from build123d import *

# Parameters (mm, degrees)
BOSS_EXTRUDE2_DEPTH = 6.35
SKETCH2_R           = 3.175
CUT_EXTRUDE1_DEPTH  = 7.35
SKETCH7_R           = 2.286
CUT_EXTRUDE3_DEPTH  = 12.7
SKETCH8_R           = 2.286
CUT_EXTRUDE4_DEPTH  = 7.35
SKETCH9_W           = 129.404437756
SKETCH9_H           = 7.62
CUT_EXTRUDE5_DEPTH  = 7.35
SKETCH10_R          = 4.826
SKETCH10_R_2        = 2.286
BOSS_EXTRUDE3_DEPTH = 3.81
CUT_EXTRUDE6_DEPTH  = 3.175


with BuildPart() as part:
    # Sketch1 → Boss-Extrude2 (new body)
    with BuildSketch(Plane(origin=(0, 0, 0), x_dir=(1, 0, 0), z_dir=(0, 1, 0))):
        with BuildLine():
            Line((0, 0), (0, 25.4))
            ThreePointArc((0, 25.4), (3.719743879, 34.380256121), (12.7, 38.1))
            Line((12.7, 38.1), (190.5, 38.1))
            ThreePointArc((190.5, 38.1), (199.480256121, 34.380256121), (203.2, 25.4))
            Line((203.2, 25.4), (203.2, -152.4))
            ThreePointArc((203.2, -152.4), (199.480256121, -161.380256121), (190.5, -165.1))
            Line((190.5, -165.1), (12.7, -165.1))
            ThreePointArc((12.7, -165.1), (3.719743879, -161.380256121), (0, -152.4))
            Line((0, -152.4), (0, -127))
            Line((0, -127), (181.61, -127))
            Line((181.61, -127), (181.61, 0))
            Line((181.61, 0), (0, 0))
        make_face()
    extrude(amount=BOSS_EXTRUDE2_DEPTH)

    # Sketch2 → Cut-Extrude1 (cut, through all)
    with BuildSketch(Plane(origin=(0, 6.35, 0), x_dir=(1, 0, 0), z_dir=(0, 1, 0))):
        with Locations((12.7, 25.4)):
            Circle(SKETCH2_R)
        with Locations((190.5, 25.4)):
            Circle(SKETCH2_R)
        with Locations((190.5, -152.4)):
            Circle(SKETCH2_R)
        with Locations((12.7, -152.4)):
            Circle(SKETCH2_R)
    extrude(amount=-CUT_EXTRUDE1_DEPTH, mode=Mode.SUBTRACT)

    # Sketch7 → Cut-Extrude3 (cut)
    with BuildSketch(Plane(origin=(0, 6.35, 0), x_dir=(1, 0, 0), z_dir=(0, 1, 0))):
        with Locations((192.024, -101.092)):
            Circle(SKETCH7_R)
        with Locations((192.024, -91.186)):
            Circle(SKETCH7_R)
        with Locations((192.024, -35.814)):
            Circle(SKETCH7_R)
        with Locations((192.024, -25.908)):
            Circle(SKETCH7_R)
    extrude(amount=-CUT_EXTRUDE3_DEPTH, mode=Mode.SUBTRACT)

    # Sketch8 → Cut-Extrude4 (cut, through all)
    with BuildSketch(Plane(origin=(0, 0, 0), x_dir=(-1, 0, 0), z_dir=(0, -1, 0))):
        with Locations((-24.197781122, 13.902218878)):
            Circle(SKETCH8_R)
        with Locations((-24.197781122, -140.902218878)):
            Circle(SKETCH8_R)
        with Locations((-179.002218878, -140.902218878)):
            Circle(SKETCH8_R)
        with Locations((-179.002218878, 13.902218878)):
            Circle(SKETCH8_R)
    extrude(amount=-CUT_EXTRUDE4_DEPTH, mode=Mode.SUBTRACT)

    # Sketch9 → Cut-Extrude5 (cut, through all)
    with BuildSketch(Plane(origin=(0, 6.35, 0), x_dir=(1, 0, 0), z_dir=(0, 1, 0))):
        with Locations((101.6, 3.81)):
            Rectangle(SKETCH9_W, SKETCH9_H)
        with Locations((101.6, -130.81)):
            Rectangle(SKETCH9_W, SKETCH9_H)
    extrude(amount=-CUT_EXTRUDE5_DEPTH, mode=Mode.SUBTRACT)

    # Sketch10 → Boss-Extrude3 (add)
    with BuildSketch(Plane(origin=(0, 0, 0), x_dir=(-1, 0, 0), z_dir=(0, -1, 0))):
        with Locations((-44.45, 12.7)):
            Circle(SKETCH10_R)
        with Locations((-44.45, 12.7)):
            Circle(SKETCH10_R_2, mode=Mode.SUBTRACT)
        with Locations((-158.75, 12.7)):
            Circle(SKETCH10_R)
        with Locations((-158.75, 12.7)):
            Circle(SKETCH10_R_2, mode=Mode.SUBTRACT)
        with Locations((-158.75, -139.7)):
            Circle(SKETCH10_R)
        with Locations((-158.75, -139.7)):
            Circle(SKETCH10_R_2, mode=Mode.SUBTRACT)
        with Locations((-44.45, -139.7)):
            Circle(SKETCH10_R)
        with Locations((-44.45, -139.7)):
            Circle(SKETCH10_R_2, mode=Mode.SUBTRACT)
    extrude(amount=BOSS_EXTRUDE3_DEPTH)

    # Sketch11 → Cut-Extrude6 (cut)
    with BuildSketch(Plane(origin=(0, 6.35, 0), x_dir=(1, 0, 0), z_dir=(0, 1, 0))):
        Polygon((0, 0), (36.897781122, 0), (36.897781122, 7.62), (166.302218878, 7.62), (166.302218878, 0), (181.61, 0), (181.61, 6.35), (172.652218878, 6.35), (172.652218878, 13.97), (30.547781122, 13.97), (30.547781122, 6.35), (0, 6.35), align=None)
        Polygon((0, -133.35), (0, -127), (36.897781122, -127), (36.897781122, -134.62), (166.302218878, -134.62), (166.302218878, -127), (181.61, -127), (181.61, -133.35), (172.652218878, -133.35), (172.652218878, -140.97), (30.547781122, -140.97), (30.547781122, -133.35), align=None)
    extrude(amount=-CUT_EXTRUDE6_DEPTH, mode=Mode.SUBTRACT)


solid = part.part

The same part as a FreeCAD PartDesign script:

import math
import FreeCAD as App
import Part
import Sketcher
from FreeCAD import Vector
Q = App.Units.Quantity


def add_polygon(sketch, points):
    """Adds a closed chain of lines whose ends are joined by coincident constraints."""
    first, n = sketch.GeometryCount, len(points)
    for a, b in zip(points, points[1:] + points[:1]):
        sketch.addGeometry(Part.LineSegment(App.Vector(*a, 0), App.Vector(*b, 0)), False)
    for i in range(n):
        sketch.addConstraint(Sketcher.Constraint("Coincident", first + i, 2, first + (i + 1) % n, 1))

doc = App.newDocument("Part")
body = doc.addObject("PartDesign::Body", "Body")

sketch1 = body.newObject("Sketcher::SketchObject", "Sketch")
sketch1.AttachmentSupport = (doc.getObject("XZ_Plane"), [""])
sketch1.MapMode = "FlatFace"
sketch1.addGeometry(Part.LineSegment(Vector(0, -25.4, 0), Vector(0, 0, 0)), False)
sketch1.addGeometry(Part.LineSegment(Vector(0, 0, 0), Vector(181.61, 0, 0)), False)
sketch1.addGeometry(Part.LineSegment(Vector(181.61, 0, 0), Vector(181.61, 127, 0)), False)
sketch1.addGeometry(Part.LineSegment(Vector(181.61, 127, 0), Vector(0, 127, 0)), False)
sketch1.addGeometry(Part.LineSegment(Vector(0, 127, 0), Vector(0, 152.4, 0)), False)
sketch1.addGeometry(Part.ArcOfCircle(Part.Circle(Vector(12.7, 152.4, 0), Vector(0, 0, 1), 12.7), math.radians(90), math.radians(180)), False)
sketch1.addGeometry(Part.LineSegment(Vector(12.7, 165.1, 0), Vector(190.5, 165.1, 0)), False)
sketch1.addGeometry(Part.ArcOfCircle(Part.Circle(Vector(190.5, 152.4, 0), Vector(0, 0, 1), 12.7), math.radians(0), math.radians(90)), False)
sketch1.addGeometry(Part.LineSegment(Vector(203.2, 152.4, 0), Vector(203.2, -25.4, 0)), False)
sketch1.addGeometry(Part.ArcOfCircle(Part.Circle(Vector(190.5, -25.4, 0), Vector(0, 0, 1), 12.7), math.radians(-90), math.radians(0)), False)
sketch1.addGeometry(Part.LineSegment(Vector(190.5, -38.1, 0), Vector(12.7, -38.1, 0)), False)
sketch1.addGeometry(Part.ArcOfCircle(Part.Circle(Vector(12.7, -25.4, 0), Vector(0, 0, 1), 12.7), math.radians(180), math.radians(270)), False)
sketch1.addConstraint(Sketcher.Constraint("Coincident", 0, 2, 1, 1))
sketch1.addConstraint(Sketcher.Constraint("Coincident", 1, 2, 2, 1))
sketch1.addConstraint(Sketcher.Constraint("Coincident", 2, 2, 3, 1))
sketch1.addConstraint(Sketcher.Constraint("Coincident", 3, 2, 4, 1))
sketch1.addConstraint(Sketcher.Constraint("Tangent", 4, 2, 5, 2))
sketch1.addConstraint(Sketcher.Constraint("Tangent", 5, 1, 6, 1))
sketch1.addConstraint(Sketcher.Constraint("Tangent", 6, 2, 7, 2))
sketch1.addConstraint(Sketcher.Constraint("Tangent", 7, 1, 8, 1))
sketch1.addConstraint(Sketcher.Constraint("Tangent", 8, 2, 9, 2))
sketch1.addConstraint(Sketcher.Constraint("Tangent", 9, 1, 10, 1))
sketch1.addConstraint(Sketcher.Constraint("Tangent", 10, 2, 11, 2))
sketch1.addConstraint(Sketcher.Constraint("Tangent", 11, 1, 0, 1))
sketch1.addConstraint(Sketcher.Constraint("Vertical", 0))
sketch1.addConstraint(Sketcher.Constraint("Horizontal", 1))
sketch1.addConstraint(Sketcher.Constraint("Vertical", 2))
sketch1.addConstraint(Sketcher.Constraint("Horizontal", 3))
sketch1.addConstraint(Sketcher.Constraint("Vertical", 4))
sketch1.addConstraint(Sketcher.Constraint("Horizontal", 6))
sketch1.addConstraint(Sketcher.Constraint("Vertical", 8))
sketch1.addConstraint(Sketcher.Constraint("Horizontal", 10))
sketch1.addConstraint(Sketcher.Constraint("Coincident", 0, 2, -1, 1))
sketch1.addConstraint(Sketcher.Constraint("Equal", 5, 7))
sketch1.addConstraint(Sketcher.Constraint("Equal", 7, 9))
sketch1.addConstraint(Sketcher.Constraint("Equal", 9, 11))
sketch1.addConstraint(Sketcher.Constraint("PointOnObject", 3, 2, -2))
sketch1.addConstraint(Sketcher.Constraint("Equal", 0, 4))
sketch1.addConstraint(Sketcher.Constraint("Equal", 10, 8))
sketch1.addConstraint(Sketcher.Constraint("Radius", 5, Q("0.5 in")))
sketch1.addConstraint(Sketcher.Constraint("DistanceX", 6, 1, 6, 2, Q("7 in")))
sketch1.addConstraint(Sketcher.Constraint("DistanceY", 0, 1, 0, 2, Q("1 in")))
sketch1.addConstraint(Sketcher.Constraint("DistanceX", 1, 1, 1, 2, Q("7.15 in")))
pad1 = body.newObject("PartDesign::Pad", "Pad")
pad1.Profile = sketch1
pad1.Length = Q("0.25 in")
pad1.Reversed = True

sketch2 = body.newObject("Sketcher::SketchObject", "Sketch001")
sketch2.AttachmentSupport = (doc.getObject("XZ_Plane"), [""])
sketch2.MapMode = "FlatFace"
sketch2.AttachmentOffset = App.Placement(Vector(0, 0, -0.25 * 25.4), App.Rotation())
sketch2.addGeometry(Part.Circle(Vector(12.7, -25.4, 0), Vector(0, 0, 1), 3.175), False)
sketch2.addGeometry(Part.Circle(Vector(190.5, -25.4, 0), Vector(0, 0, 1), 3.175), False)
sketch2.addGeometry(Part.Circle(Vector(190.5, 152.4, 0), Vector(0, 0, 1), 3.175), False)
sketch2.addGeometry(Part.Circle(Vector(12.7, 152.4, 0), Vector(0, 0, 1), 3.175), False)
sketch2.addConstraint(Sketcher.Constraint("Equal", 0, 1))
sketch2.addConstraint(Sketcher.Constraint("Equal", 1, 2))
sketch2.addConstraint(Sketcher.Constraint("Equal", 2, 3))
sketch2.addConstraint(Sketcher.Constraint("Horizontal", 0, 3, 1, 3))
sketch2.addConstraint(Sketcher.Constraint("Horizontal", 2, 3, 3, 3))
sketch2.addConstraint(Sketcher.Constraint("Vertical", 1, 3, 2, 3))
sketch2.addConstraint(Sketcher.Constraint("Vertical", 0, 3, 3, 3))
sketch2.addConstraint(Sketcher.Constraint("Diameter", 0, Q("0.25 in")))
sketch2.addConstraint(Sketcher.Constraint("DistanceY", 0, 3, -1, 1, Q("1 in")))
sketch2.addConstraint(Sketcher.Constraint("DistanceY", -1, 1, 2, 3, Q("6 in")))
sketch2.addConstraint(Sketcher.Constraint("DistanceX", 0, 3, 1, 3, Q("7 in")))
sketch2.addConstraint(Sketcher.Constraint("DistanceX", -1, 1, 0, 3, Q("0.5 in")))
pocket1 = body.newObject("PartDesign::Pocket", "Pocket")
pocket1.Profile = sketch2
pocket1.Type = "ThroughAll"
pocket1.Reversed = True

sketch3 = body.newObject("Sketcher::SketchObject", "Sketch002")
sketch3.AttachmentSupport = (doc.getObject("XZ_Plane"), [""])
sketch3.MapMode = "FlatFace"
sketch3.AttachmentOffset = App.Placement(Vector(0, 0, -0.25 * 25.4), App.Rotation())
sketch3.addGeometry(Part.Circle(Vector(192.024, 101.092, 0), Vector(0, 0, 1), 2.286), False)
sketch3.addGeometry(Part.Circle(Vector(192.024, 91.186, 0), Vector(0, 0, 1), 2.286), False)
sketch3.addGeometry(Part.Circle(Vector(192.024, 35.814, 0), Vector(0, 0, 1), 2.286), False)
sketch3.addGeometry(Part.Circle(Vector(192.024, 25.908, 0), Vector(0, 0, 1), 2.286), False)
sketch3.addConstraint(Sketcher.Constraint("Equal", 0, 1))
sketch3.addConstraint(Sketcher.Constraint("Equal", 1, 2))
sketch3.addConstraint(Sketcher.Constraint("Equal", 2, 3))
sketch3.addConstraint(Sketcher.Constraint("Vertical", 0, 3, 1, 3))
sketch3.addConstraint(Sketcher.Constraint("Vertical", 1, 3, 2, 3))
sketch3.addConstraint(Sketcher.Constraint("Vertical", 2, 3, 3, 3))
sketch3.addConstraint(Sketcher.Constraint("Diameter", 0, Q("0.18 in")))
sketch3.addConstraint(Sketcher.Constraint("DistanceX", -1, 1, 0, 3, Q("7.56 in")))
sketch3.addConstraint(Sketcher.Constraint("DistanceY", -1, 1, 0, 3, Q("3.98 in")))
sketch3.addConstraint(Sketcher.Constraint("DistanceY", -1, 1, 1, 3, Q("3.59 in")))
sketch3.addConstraint(Sketcher.Constraint("DistanceY", -1, 1, 2, 3, Q("1.41 in")))
sketch3.addConstraint(Sketcher.Constraint("DistanceY", -1, 1, 3, 3, Q("1.02 in")))
pocket2 = body.newObject("PartDesign::Pocket", "Pocket001")
pocket2.Profile = sketch3
pocket2.Length = Q("0.5 in")
pocket2.Reversed = True

sketch4 = body.newObject("Sketcher::SketchObject", "Sketch003")
sketch4.AttachmentSupport = (doc.getObject("XZ_Plane"), [""])
sketch4.MapMode = "FlatFace"
sketch4.addGeometry(Part.Circle(Vector(24.197781, -13.902219, 0), Vector(0, 0, 1), 2.286), False)
sketch4.addGeometry(Part.Circle(Vector(24.197781, 140.902219, 0), Vector(0, 0, 1), 2.286), False)
sketch4.addGeometry(Part.Circle(Vector(179.002219, 140.902219, 0), Vector(0, 0, 1), 2.286), False)
sketch4.addGeometry(Part.Circle(Vector(179.002219, -13.902219, 0), Vector(0, 0, 1), 2.286), False)
sketch4.addConstraint(Sketcher.Constraint("Equal", 0, 1))
sketch4.addConstraint(Sketcher.Constraint("Equal", 1, 2))
sketch4.addConstraint(Sketcher.Constraint("Equal", 2, 3))
sketch4.addConstraint(Sketcher.Constraint("Horizontal", 1, 3, 2, 3))
sketch4.addConstraint(Sketcher.Constraint("Horizontal", 0, 3, 3, 3))
sketch4.addConstraint(Sketcher.Constraint("Vertical", 0, 3, 1, 3))
sketch4.addConstraint(Sketcher.Constraint("Vertical", 2, 3, 3, 3))
sketch4.addConstraint(Sketcher.Constraint("Diameter", 0, Q("0.18 in")))
sketch4.addConstraint(Sketcher.Constraint("DistanceX", -1, 1, 0, 3, Q("24.197781 mm")))
sketch4.addConstraint(Sketcher.Constraint("DistanceY", 0, 3, -1, 1, Q("13.902219 mm")))
sketch4.addConstraint(Sketcher.Constraint("DistanceY", -1, 1, 1, 3, Q("140.902219 mm")))
sketch4.addConstraint(Sketcher.Constraint("DistanceX", -1, 1, 2, 3, Q("179.002219 mm")))
pocket3 = body.newObject("PartDesign::Pocket", "Pocket002")
pocket3.Profile = sketch4
pocket3.Type = "ThroughAll"

sketch5 = body.newObject("Sketcher::SketchObject", "Sketch004")
sketch5.AttachmentSupport = (doc.getObject("XZ_Plane"), [""])
sketch5.MapMode = "FlatFace"
sketch5.AttachmentOffset = App.Placement(Vector(0, 0, -0.25 * 25.4), App.Rotation())
add_polygon(sketch5, [(36.897781, -7.62), (36.897781, 0), (166.302219, 0), (166.302219, -7.62)])
add_polygon(sketch5, [(36.897781, 127), (36.897781, 134.62), (166.302219, 134.62), (166.302219, 127)])
sketch5.addConstraint(Sketcher.Constraint("Vertical", 0))
sketch5.addConstraint(Sketcher.Constraint("Horizontal", 1))
sketch5.addConstraint(Sketcher.Constraint("Vertical", 2))
sketch5.addConstraint(Sketcher.Constraint("Horizontal", 3))
sketch5.addConstraint(Sketcher.Constraint("Vertical", 4))
sketch5.addConstraint(Sketcher.Constraint("Horizontal", 5))
sketch5.addConstraint(Sketcher.Constraint("Vertical", 6))
sketch5.addConstraint(Sketcher.Constraint("Horizontal", 7))
sketch5.addConstraint(Sketcher.Constraint("PointOnObject", 0, 2, -1))
sketch5.addConstraint(Sketcher.Constraint("Vertical", 3, 2, 4, 2))
sketch5.addConstraint(Sketcher.Constraint("Vertical", 2, 2, 5, 2))
sketch5.addConstraint(Sketcher.Constraint("Equal", 2, 4))
sketch5.addConstraint(Sketcher.Constraint("DistanceY", 0, 1, 0, 2, Q("0.3 in")))
sketch5.addConstraint(Sketcher.Constraint("DistanceY", -1, 1, 6, 2, Q("5 in")))
sketch5.addConstraint(Sketcher.Constraint("DistanceX", 1, 1, 1, 2, Q("129.404438 mm")))
sketch5.addConstraint(Sketcher.Constraint("DistanceX", -1, 1, 0, 2, Q("36.897781 mm")))
pocket4 = body.newObject("PartDesign::Pocket", "Pocket003")
pocket4.Profile = sketch5
pocket4.Type = "ThroughAll"
pocket4.Reversed = True

sketch6 = body.newObject("Sketcher::SketchObject", "Sketch005")
sketch6.AttachmentSupport = (doc.getObject("XZ_Plane"), [""])
sketch6.MapMode = "FlatFace"
sketch6.addGeometry(Part.Circle(Vector(44.45, -12.7, 0), Vector(0, 0, 1), 4.826), False)
sketch6.addGeometry(Part.Circle(Vector(44.45, -12.7, 0), Vector(0, 0, 1), 2.286), False)
sketch6.addGeometry(Part.Circle(Vector(158.75, -12.7, 0), Vector(0, 0, 1), 4.826), False)
sketch6.addGeometry(Part.Circle(Vector(158.75, -12.7, 0), Vector(0, 0, 1), 2.286), False)
sketch6.addGeometry(Part.Circle(Vector(158.75, 139.7, 0), Vector(0, 0, 1), 4.826), False)
sketch6.addGeometry(Part.Circle(Vector(158.75, 139.7, 0), Vector(0, 0, 1), 2.286), False)
sketch6.addGeometry(Part.Circle(Vector(44.45, 139.7, 0), Vector(0, 0, 1), 4.826), False)
sketch6.addGeometry(Part.Circle(Vector(44.45, 139.7, 0), Vector(0, 0, 1), 2.286), False)
sketch6.addConstraint(Sketcher.Constraint("Coincident", 1, 3, 0, 3))
sketch6.addConstraint(Sketcher.Constraint("Coincident", 3, 3, 2, 3))
sketch6.addConstraint(Sketcher.Constraint("Coincident", 5, 3, 4, 3))
sketch6.addConstraint(Sketcher.Constraint("Coincident", 7, 3, 6, 3))
sketch6.addConstraint(Sketcher.Constraint("Equal", 0, 2))
sketch6.addConstraint(Sketcher.Constraint("Equal", 1, 3))
sketch6.addConstraint(Sketcher.Constraint("Equal", 2, 4))
sketch6.addConstraint(Sketcher.Constraint("Equal", 3, 5))
sketch6.addConstraint(Sketcher.Constraint("Equal", 4, 6))
sketch6.addConstraint(Sketcher.Constraint("Equal", 5, 7))
sketch6.addConstraint(Sketcher.Constraint("Horizontal", 1, 3, 2, 3))
sketch6.addConstraint(Sketcher.Constraint("Horizontal", 5, 3, 6, 3))
sketch6.addConstraint(Sketcher.Constraint("Vertical", 3, 3, 4, 3))
sketch6.addConstraint(Sketcher.Constraint("Vertical", 1, 3, 6, 3))
sketch6.addConstraint(Sketcher.Constraint("Diameter", 0, Q("0.38 in")))
sketch6.addConstraint(Sketcher.Constraint("Diameter", 1, Q("0.18 in")))
sketch6.addConstraint(Sketcher.Constraint("DistanceY", 2, 3, 4, 3, Q("6 in")))
sketch6.addConstraint(Sketcher.Constraint("DistanceY", 0, 3, -1, 1, Q("0.5 in")))
sketch6.addConstraint(Sketcher.Constraint("DistanceX", 0, 3, 2, 3, Q("4.5 in")))
sketch6.addConstraint(Sketcher.Constraint("DistanceX", -1, 1, 0, 3, Q("1.75 in")))
pad2 = body.newObject("PartDesign::Pad", "Pad001")
pad2.Profile = sketch6
pad2.Length = Q("0.15 in")

sketch7 = body.newObject("Sketcher::SketchObject", "Sketch006")
sketch7.AttachmentSupport = (doc.getObject("XZ_Plane"), [""])
sketch7.MapMode = "FlatFace"
sketch7.AttachmentOffset = App.Placement(Vector(0, 0, -0.25 * 25.4), App.Rotation())
add_polygon(sketch7, [(0, 0), (36.897781, 0), (36.897781, -7.62), (166.302219, -7.62), (166.302219, 0), (181.61, 0), (181.61, -6.35), (172.652219, -6.35), (172.652219, -13.97), (30.547781, -13.97), (30.547781, -6.35), (0, -6.35)])
add_polygon(sketch7, [(0, 127), (0, 133.35), (30.547781, 133.35), (30.547781, 140.97), (172.652219, 140.97), (172.652219, 133.35), (181.61, 133.35), (181.61, 127), (166.302219, 127), (166.302219, 134.62), (36.897781, 134.62), (36.897781, 127)])
sketch7.addConstraint(Sketcher.Constraint("Horizontal", 0))
sketch7.addConstraint(Sketcher.Constraint("Vertical", 1))
sketch7.addConstraint(Sketcher.Constraint("Horizontal", 2))
sketch7.addConstraint(Sketcher.Constraint("Vertical", 3))
sketch7.addConstraint(Sketcher.Constraint("Horizontal", 4))
sketch7.addConstraint(Sketcher.Constraint("Vertical", 5))
sketch7.addConstraint(Sketcher.Constraint("Horizontal", 6))
sketch7.addConstraint(Sketcher.Constraint("Vertical", 7))
sketch7.addConstraint(Sketcher.Constraint("Horizontal", 8))
sketch7.addConstraint(Sketcher.Constraint("Vertical", 9))
sketch7.addConstraint(Sketcher.Constraint("Horizontal", 10))
sketch7.addConstraint(Sketcher.Constraint("Vertical", 11))
sketch7.addConstraint(Sketcher.Constraint("Vertical", 12))
sketch7.addConstraint(Sketcher.Constraint("Horizontal", 13))
sketch7.addConstraint(Sketcher.Constraint("Vertical", 14))
sketch7.addConstraint(Sketcher.Constraint("Horizontal", 15))
sketch7.addConstraint(Sketcher.Constraint("Vertical", 16))
sketch7.addConstraint(Sketcher.Constraint("Horizontal", 17))
sketch7.addConstraint(Sketcher.Constraint("Vertical", 18))
sketch7.addConstraint(Sketcher.Constraint("Horizontal", 19))
sketch7.addConstraint(Sketcher.Constraint("Vertical", 20))
sketch7.addConstraint(Sketcher.Constraint("Horizontal", 21))
sketch7.addConstraint(Sketcher.Constraint("Vertical", 22))
sketch7.addConstraint(Sketcher.Constraint("Horizontal", 23))
sketch7.addConstraint(Sketcher.Constraint("Coincident", 11, 2, -1, 1))
sketch7.addConstraint(Sketcher.Constraint("PointOnObject", 3, 2, -1))
sketch7.addConstraint(Sketcher.Constraint("PointOnObject", 12, 2, -2))
sketch7.addConstraint(Sketcher.Constraint("Horizontal", 6, 2, 9, 2))
sketch7.addConstraint(Sketcher.Constraint("Horizontal", 13, 2, 16, 2))
sketch7.addConstraint(Sketcher.Constraint("Horizontal", 19, 2, 22, 2))
sketch7.addConstraint(Sketcher.Constraint("Vertical", 9, 2, 13, 2))
sketch7.addConstraint(Sketcher.Constraint("Vertical", 7, 2, 15, 2))
sketch7.addConstraint(Sketcher.Constraint("Vertical", 5, 2, 17, 2))
sketch7.addConstraint(Sketcher.Constraint("Vertical", 3, 2, 19, 2))
sketch7.addConstraint(Sketcher.Constraint("Vertical", 1, 2, 21, 2))
sketch7.addConstraint(Sketcher.Constraint("Equal", 3, 7))
sketch7.addConstraint(Sketcher.Constraint("Equal", 11, 12))
sketch7.addConstraint(Sketcher.Constraint("Equal", 9, 14))
sketch7.addConstraint(Sketcher.Constraint("Equal", 16, 20))
sketch7.addConstraint(Sketcher.Constraint("DistanceY", 1, 2, 1, 1, Q("0.3 in")))
sketch7.addConstraint(Sketcher.Constraint("DistanceY", -1, 1, 18, 2, Q("5 in")))
sketch7.addConstraint(Sketcher.Constraint("DistanceY", 5, 2, 5, 1, Q("0.25 in")))
sketch7.addConstraint(Sketcher.Constraint("DistanceX", -1, 1, 4, 2, Q("7.15 in")))
sketch7.addConstraint(Sketcher.Constraint("DistanceX", 2, 2, 6, 2, Q("0.25 in")))
sketch7.addConstraint(Sketcher.Constraint("DistanceX", 8, 2, 1, 2, Q("0.25 in")))
sketch7.addConstraint(Sketcher.Constraint("DistanceX", 0, 1, 0, 2, Q("36.897781 mm")))
sketch7.addConstraint(Sketcher.Constraint("DistanceX", 4, 1, 4, 2, Q("15.307781 mm")))
pocket5 = body.newObject("PartDesign::Pocket", "Pocket004")
pocket5.Profile = sketch7
pocket5.Length = Q("0.125 in")
pocket5.Reversed = True

doc.recompute()
